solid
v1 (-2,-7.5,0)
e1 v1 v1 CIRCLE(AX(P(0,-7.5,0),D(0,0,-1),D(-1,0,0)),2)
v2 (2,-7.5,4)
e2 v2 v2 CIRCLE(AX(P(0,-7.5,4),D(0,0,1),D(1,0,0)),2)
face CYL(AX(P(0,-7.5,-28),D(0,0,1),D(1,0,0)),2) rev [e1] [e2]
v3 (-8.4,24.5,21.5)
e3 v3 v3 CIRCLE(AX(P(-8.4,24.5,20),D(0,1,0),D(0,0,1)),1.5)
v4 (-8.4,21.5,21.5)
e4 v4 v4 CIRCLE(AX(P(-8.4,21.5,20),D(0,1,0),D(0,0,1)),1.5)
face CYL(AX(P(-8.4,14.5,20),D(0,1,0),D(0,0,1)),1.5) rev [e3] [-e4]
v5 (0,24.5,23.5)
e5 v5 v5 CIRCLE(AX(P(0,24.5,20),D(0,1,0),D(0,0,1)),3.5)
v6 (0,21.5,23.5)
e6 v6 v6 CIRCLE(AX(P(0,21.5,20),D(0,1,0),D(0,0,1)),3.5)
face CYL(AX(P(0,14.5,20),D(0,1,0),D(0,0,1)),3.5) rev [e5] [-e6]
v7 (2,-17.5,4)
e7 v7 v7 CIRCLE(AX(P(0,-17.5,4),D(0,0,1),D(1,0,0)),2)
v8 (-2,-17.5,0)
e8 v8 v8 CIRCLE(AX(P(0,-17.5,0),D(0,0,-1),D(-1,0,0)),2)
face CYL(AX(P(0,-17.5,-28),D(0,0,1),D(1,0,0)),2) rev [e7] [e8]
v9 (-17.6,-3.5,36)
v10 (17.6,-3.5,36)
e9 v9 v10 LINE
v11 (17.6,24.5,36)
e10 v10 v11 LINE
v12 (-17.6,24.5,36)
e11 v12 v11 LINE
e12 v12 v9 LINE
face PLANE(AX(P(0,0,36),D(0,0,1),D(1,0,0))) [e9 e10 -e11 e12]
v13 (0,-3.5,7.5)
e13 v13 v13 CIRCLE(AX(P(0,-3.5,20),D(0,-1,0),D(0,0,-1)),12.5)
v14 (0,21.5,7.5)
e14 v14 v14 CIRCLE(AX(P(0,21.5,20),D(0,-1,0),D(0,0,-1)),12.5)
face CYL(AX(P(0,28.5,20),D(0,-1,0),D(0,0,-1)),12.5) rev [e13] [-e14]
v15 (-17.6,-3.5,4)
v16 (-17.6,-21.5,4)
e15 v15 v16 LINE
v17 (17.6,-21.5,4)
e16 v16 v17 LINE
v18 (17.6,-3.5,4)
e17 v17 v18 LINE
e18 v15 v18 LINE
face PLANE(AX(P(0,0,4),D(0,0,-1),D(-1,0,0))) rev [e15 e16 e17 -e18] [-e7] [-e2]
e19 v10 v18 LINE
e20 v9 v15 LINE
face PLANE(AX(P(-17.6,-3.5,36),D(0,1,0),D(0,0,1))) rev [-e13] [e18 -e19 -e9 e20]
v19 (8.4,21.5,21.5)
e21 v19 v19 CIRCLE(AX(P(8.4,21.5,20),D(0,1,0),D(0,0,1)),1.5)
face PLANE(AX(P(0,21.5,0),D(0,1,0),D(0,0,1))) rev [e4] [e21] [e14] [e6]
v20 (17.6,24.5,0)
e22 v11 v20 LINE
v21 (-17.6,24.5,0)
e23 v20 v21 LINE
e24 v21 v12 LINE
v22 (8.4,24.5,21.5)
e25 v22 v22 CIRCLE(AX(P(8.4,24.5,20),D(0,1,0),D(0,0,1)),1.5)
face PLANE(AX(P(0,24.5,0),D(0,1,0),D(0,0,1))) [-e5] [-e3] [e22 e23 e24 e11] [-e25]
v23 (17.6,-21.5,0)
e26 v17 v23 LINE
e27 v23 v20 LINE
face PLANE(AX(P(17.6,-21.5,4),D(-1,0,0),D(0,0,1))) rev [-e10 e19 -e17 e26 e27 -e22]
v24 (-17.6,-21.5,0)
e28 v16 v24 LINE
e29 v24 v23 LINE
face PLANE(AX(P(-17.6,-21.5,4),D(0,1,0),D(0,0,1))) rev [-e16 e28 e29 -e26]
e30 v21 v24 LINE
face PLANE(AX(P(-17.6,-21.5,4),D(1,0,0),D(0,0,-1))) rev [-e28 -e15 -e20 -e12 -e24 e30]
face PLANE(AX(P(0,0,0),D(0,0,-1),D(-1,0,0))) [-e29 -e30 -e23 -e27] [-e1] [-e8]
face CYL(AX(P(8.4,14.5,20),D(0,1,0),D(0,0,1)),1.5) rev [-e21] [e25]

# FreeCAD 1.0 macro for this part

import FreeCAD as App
import Part
import Sketcher
from FreeCAD import Vector
Q = App.Units.Quantity

doc = App.newDocument("Part")
params = doc.addObject("Spreadsheet::Sheet", "Params")
for row, (alias, value) in enumerate([
    ("sketch1_height", "43 mm"),
    ("sketch1_width", "35.2 mm"),
    ("pad1_length", "4 mm"),
    ("sketch2_height", "25 mm"),
    ("sketch2_width", "35.2 mm"),
    ("pad2_length", "32 mm"),
    ("sketch3_diameter", "25 mm"),
    ("pocket1_length", "32 mm"),
    ("sketch4_diameter", "4 mm"),
    ("pocket2_length", "32 mm"),
    ("sketch5_height", "36 mm"),
    ("sketch5_width", "35.2 mm"),
    ("pad3_length", "3 mm"),
    ("sketch6_diameter", "7 mm"),
    ("sketch6_diameter2", "3 mm"),
    ("pocket3_length", "10 mm"),
], start=1):
    params.set(f"A{row}", alias)
    params.set(f"B{row}", "=" + value)
    params.setAlias(f"B{row}", alias)

body = doc.addObject("PartDesign::Body", "Body")

sketch1 = body.newObject("Sketcher::SketchObject", "Sketch")
sketch1.AttachmentSupport = (doc.getObject("XY_Plane"), [""])
sketch1.MapMode = "FlatFace"
sketch1.addGeometry([
    Part.LineSegment(Vector(-18, 22, 0), Vector(-18, -22, 0)),
    Part.LineSegment(Vector(-18, -22, 0), Vector(18, -22, 0)),
    Part.LineSegment(Vector(18, -22, 0), Vector(18, 22, 0)),
    Part.LineSegment(Vector(18, 22, 0), Vector(-18, 22, 0)),
], False)
sketch1.addConstraint([
    Sketcher.Constraint("Coincident", 0, 2, 1, 1),
    Sketcher.Constraint("Coincident", 1, 2, 2, 1),
    Sketcher.Constraint("Coincident", 2, 2, 3, 1),
    Sketcher.Constraint("Coincident", 3, 2, 0, 1),
    Sketcher.Constraint("Vertical", 0),
    Sketcher.Constraint("Horizontal", 1),
    Sketcher.Constraint("Vertical", 2),
    Sketcher.Constraint("Horizontal", 3),
    Sketcher.Constraint("Symmetric", 0, 2, 2, 2, -1, 1),
    Sketcher.Constraint("DistanceY", 0, 2, 0, 1, Q("43 mm")),
    Sketcher.Constraint("DistanceX", 1, 1, 1, 2, Q("35.2 mm")),
])
sketch1.setExpression("Constraints[9]", "Params.sketch1_height")
sketch1.setExpression("Constraints[10]", "Params.sketch1_width")
pad1 = body.newObject("PartDesign::Pad", "Pad")
pad1.Profile = sketch1
pad1.setExpression("Length", "Params.pad1_length")

sketch2 = body.newObject("Sketcher::SketchObject", "Sketch001")
sketch2.AttachmentSupport = (doc.getObject("XY_Plane"), [""])
sketch2.MapMode = "FlatFace"
sketch2.AttachmentOffset = App.Placement(Vector(0, 0, 4), App.Rotation())
sketch2.addGeometry([
    Part.LineSegment(Vector(-18, 22, 0), Vector(-18, -4, 0)),
    Part.LineSegment(Vector(-18, -4, 0), Vector(18, -4, 0)),
    Part.LineSegment(Vector(18, -4, 0), Vector(18, 22, 0)),
    Part.LineSegment(Vector(18, 22, 0), Vector(-18, 22, 0)),
], False)
sketch2.addConstraint([
    Sketcher.Constraint("Coincident", 0, 2, 1, 1),
    Sketcher.Constraint("Coincident", 1, 2, 2, 1),
    Sketcher.Constraint("Coincident", 2, 2, 3, 1),
    Sketcher.Constraint("Coincident", 3, 2, 0, 1),
    Sketcher.Constraint("Vertical", 0),
    Sketcher.Constraint("Horizontal", 1),
    Sketcher.Constraint("Vertical", 2),
    Sketcher.Constraint("Horizontal", 3),
    Sketcher.Constraint("DistanceY", 0, 2, 0, 1, Q("25 mm")),
    Sketcher.Constraint("DistanceX", 1, 1, 1, 2, Q("35.2 mm")),
    Sketcher.Constraint("DistanceX", 0, 2, -1, 1, Q("17.6 mm")),
    Sketcher.Constraint("DistanceY", 0, 2, -1, 1, Q("3.5 mm")),
])
sketch2.setExpression("Constraints[8]", "Params.sketch2_height")
sketch2.setExpression("Constraints[9]", "Params.sketch2_width")
pad2 = body.newObject("PartDesign::Pad", "Pad001")
pad2.Profile = sketch2
pad2.setExpression("Length", "Params.pad2_length")

sketch3 = body.newObject("Sketcher::SketchObject", "Sketch002")
sketch3.AttachmentSupport = (doc.getObject("XZ_Plane"), [""])
sketch3.MapMode = "FlatFace"
sketch3.AttachmentOffset = App.Placement(Vector(0, 0, 3.5), App.Rotation())
sketch3.addGeometry(Part.Circle(Vector(0, 20, 0), Vector(0, 0, 1), 12), False)
sketch3.addConstraint([
    Sketcher.Constraint("PointOnObject", 0, 3, -2),
    Sketcher.Constraint("Diameter", 0, Q("25 mm")),
    Sketcher.Constraint("DistanceY", -1, 1, 0, 3, Q("20 mm")),
])
sketch3.setExpression("Constraints[1]", "Params.sketch3_diameter")
pocket1 = body.newObject("PartDesign::Pocket", "Pocket")
pocket1.Profile = sketch3
pocket1.setExpression("Length", "Params.pocket1_length")

sketch4 = body.newObject("Sketcher::SketchObject", "Sketch003")
sketch4.AttachmentSupport = (doc.getObject("XY_Plane"), [""])
sketch4.MapMode = "FlatFace"
sketch4.AttachmentOffset = App.Placement(Vector(0, 0, 4), App.Rotation())
sketch4.addGeometry([
    Part.Circle(Vector(0, -7.5, 0), Vector(0, 0, 1), 2),
    Part.Circle(Vector(0, -17.5, 0), Vector(0, 0, 1), 2),
], False)
sketch4.addConstraint([
    Sketcher.Constraint("Equal", 0, 1),
    Sketcher.Constraint("PointOnObject", 0, 3, -2),
    Sketcher.Constraint("PointOnObject", 1, 3, -2),
    Sketcher.Constraint("Diameter", 0, Q("4 mm")),
    Sketcher.Constraint("DistanceY", 1, 3, 0, 3, Q("10 mm")),
    Sketcher.Constraint("DistanceY", 0, 3, -1, 1, Q("7.5 mm")),
])
sketch4.setExpression("Constraints[3]", "Params.sketch4_diameter")
pocket2 = body.newObject("PartDesign::Pocket", "Pocket001")
pocket2.Profile = sketch4
pocket2.setExpression("Length", "Params.pocket2_length")

sketch5 = body.newObject("Sketcher::SketchObject", "Sketch004")
sketch5.AttachmentSupport = (doc.getObject("XZ_Plane"), [""])
sketch5.MapMode = "FlatFace"
sketch5.AttachmentOffset = App.Placement(Vector(0, 0, -21.5), App.Rotation())
sketch5.addGeometry([
    Part.LineSegment(Vector(-18, 0, 0), Vector(-18, 36, 0)),
    Part.LineSegment(Vector(-18, 36, 0), Vector(18, 36, 0)),
    Part.LineSegment(Vector(18, 36, 0), Vector(18, 0, 0)),
    Part.LineSegment(Vector(18, 0, 0), Vector(-18, 0, 0)),
], False)
sketch5.addConstraint([
    Sketcher.Constraint("Coincident", 0, 2, 1, 1),
    Sketcher.Constraint("Coincident", 1, 2, 2, 1),
    Sketcher.Constraint("Coincident", 2, 2, 3, 1),
    Sketcher.Constraint("Coincident", 3, 2, 0, 1),
    Sketcher.Constraint("Vertical", 0),
    Sketcher.Constraint("Horizontal", 1),
    Sketcher.Constraint("Vertical", 2),
    Sketcher.Constraint("Horizontal", 3),
    Sketcher.Constraint("Symmetric", 2, 2, 3, 2, -1, 1),
    Sketcher.Constraint("DistanceY", 0, 1, 0, 2, Q("36 mm")),
    Sketcher.Constraint("DistanceX", 1, 1, 1, 2, Q("35.2 mm")),
])
sketch5.setExpression("Constraints[9]", "Params.sketch5_height")
sketch5.setExpression("Constraints[10]", "Params.sketch5_width")
pad3 = body.newObject("PartDesign::Pad", "Pad002")
pad3.Profile = sketch5
pad3.setExpression("Length", "Params.pad3_length")
pad3.Reversed = True

sketch6 = body.newObject("Sketcher::SketchObject", "Sketch005")
sketch6.AttachmentSupport = (doc.getObject("XZ_Plane"), [""])
sketch6.MapMode = "FlatFace"
sketch6.AttachmentOffset = App.Placement(Vector(0, 0, -24.5), App.Rotation())
sketch6.addGeometry([
    Part.Circle(Vector(0, 20, 0), Vector(0, 0, 1), 3.5),
    Part.Circle(Vector(8.4, 20, 0), Vector(0, 0, 1), 1.5),
    Part.Circle(Vector(-8.4, 20, 0), Vector(0, 0, 1), 1.5),
], False)
sketch6.addConstraint([
    Sketcher.Constraint("Equal", 1, 2),
    Sketcher.Constraint("Symmetric", 1, 3, 2, 3, -2),
    Sketcher.Constraint("PointOnObject", 0, 3, -2),
    Sketcher.Constraint("Horizontal", 0, 3, 1, 3),
    Sketcher.Constraint("Diameter", 0, Q("7 mm")),
    Sketcher.Constraint("Diameter", 1, Q("3 mm")),
    Sketcher.Constraint("DistanceY", -1, 1, 0, 3, Q("20 mm")),
    Sketcher.Constraint("DistanceX", -1, 1, 1, 3, Q("8.4 mm")),
])
sketch6.setExpression("Constraints[4]", "Params.sketch6_diameter")
sketch6.setExpression("Constraints[5]", "Params.sketch6_diameter2")
pocket3 = body.newObject("PartDesign::Pocket", "Pocket002")
pocket3.Profile = sketch6
pocket3.setExpression("Length", "Params.pocket3_length")
pocket3.Reversed = True

doc.recompute()
